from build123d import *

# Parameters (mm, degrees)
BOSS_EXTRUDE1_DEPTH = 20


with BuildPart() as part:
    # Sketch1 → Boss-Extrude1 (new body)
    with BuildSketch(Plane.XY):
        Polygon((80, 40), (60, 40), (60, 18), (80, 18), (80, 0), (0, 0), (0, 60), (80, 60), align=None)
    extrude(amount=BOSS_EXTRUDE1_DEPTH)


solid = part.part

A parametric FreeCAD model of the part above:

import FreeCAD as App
import Part
import Sketcher
from FreeCAD import Vector
Q = App.Units.Quantity


def add_polygon(sketch, points):
    """Adds a closed chain of lines whose ends are joined by coincident constraints."""
    first, n = sketch.GeometryCount, len(points)
    for a, b in zip(points, points[1:] + points[:1]):
        sketch.addGeometry(Part.LineSegment(App.Vector(*a, 0), App.Vector(*b, 0)), False)
    for i in range(n):
        sketch.addConstraint(Sketcher.Constraint("Coincident", first + i, 2, first + (i + 1) % n, 1))

doc = App.newDocument("Part")
body = doc.addObject("PartDesign::Body", "Body")

sketch1 = body.newObject("Sketcher::SketchObject", "Sketch")
sketch1.AttachmentSupport = (doc.getObject("XY_Plane"), [""])
sketch1.MapMode = "FlatFace"
add_polygon(sketch1, [(60, 40), (80, 40), (80, 60), (0, 60), (0, 0), (80, 0), (80, 18), (60, 18)])
sketch1.addConstraint(Sketcher.Constraint("Horizontal", 0))
sketch1.addConstraint(Sketcher.Constraint("Vertical", 1))
sketch1.addConstraint(Sketcher.Constraint("Horizontal", 2))
sketch1.addConstraint(Sketcher.Constraint("Vertical", 3))
sketch1.addConstraint(Sketcher.Constraint("Horizontal", 4))
sketch1.addConstraint(Sketcher.Constraint("Vertical", 5))
sketch1.addConstraint(Sketcher.Constraint("Horizontal", 6))
sketch1.addConstraint(Sketcher.Constraint("Vertical", 7))
sketch1.addConstraint(Sketcher.Constraint("Coincident", 3, 2, -1, 1))
sketch1.addConstraint(Sketcher.Constraint("Vertical", 1, 2, 4, 2))
sketch1.addConstraint(Sketcher.Constraint("Equal", 6, 1))
sketch1.addConstraint(Sketcher.Constraint("DistanceX", 0, 1, 0, 2, Q("20 mm")))
sketch1.addConstraint(Sketcher.Constraint("DistanceX", 2, 2, 2, 1, Q("80 mm")))
sketch1.addConstraint(Sketcher.Constraint("DistanceY", 3, 2, 3, 1, Q("60 mm")))
sketch1.addConstraint(Sketcher.Constraint("DistanceY", 5, 1, 5, 2, Q("18 mm")))
pad1 = body.newObject("PartDesign::Pad", "Pad")
pad1.Profile = sketch1
pad1.Length = 20

doc.recompute()
